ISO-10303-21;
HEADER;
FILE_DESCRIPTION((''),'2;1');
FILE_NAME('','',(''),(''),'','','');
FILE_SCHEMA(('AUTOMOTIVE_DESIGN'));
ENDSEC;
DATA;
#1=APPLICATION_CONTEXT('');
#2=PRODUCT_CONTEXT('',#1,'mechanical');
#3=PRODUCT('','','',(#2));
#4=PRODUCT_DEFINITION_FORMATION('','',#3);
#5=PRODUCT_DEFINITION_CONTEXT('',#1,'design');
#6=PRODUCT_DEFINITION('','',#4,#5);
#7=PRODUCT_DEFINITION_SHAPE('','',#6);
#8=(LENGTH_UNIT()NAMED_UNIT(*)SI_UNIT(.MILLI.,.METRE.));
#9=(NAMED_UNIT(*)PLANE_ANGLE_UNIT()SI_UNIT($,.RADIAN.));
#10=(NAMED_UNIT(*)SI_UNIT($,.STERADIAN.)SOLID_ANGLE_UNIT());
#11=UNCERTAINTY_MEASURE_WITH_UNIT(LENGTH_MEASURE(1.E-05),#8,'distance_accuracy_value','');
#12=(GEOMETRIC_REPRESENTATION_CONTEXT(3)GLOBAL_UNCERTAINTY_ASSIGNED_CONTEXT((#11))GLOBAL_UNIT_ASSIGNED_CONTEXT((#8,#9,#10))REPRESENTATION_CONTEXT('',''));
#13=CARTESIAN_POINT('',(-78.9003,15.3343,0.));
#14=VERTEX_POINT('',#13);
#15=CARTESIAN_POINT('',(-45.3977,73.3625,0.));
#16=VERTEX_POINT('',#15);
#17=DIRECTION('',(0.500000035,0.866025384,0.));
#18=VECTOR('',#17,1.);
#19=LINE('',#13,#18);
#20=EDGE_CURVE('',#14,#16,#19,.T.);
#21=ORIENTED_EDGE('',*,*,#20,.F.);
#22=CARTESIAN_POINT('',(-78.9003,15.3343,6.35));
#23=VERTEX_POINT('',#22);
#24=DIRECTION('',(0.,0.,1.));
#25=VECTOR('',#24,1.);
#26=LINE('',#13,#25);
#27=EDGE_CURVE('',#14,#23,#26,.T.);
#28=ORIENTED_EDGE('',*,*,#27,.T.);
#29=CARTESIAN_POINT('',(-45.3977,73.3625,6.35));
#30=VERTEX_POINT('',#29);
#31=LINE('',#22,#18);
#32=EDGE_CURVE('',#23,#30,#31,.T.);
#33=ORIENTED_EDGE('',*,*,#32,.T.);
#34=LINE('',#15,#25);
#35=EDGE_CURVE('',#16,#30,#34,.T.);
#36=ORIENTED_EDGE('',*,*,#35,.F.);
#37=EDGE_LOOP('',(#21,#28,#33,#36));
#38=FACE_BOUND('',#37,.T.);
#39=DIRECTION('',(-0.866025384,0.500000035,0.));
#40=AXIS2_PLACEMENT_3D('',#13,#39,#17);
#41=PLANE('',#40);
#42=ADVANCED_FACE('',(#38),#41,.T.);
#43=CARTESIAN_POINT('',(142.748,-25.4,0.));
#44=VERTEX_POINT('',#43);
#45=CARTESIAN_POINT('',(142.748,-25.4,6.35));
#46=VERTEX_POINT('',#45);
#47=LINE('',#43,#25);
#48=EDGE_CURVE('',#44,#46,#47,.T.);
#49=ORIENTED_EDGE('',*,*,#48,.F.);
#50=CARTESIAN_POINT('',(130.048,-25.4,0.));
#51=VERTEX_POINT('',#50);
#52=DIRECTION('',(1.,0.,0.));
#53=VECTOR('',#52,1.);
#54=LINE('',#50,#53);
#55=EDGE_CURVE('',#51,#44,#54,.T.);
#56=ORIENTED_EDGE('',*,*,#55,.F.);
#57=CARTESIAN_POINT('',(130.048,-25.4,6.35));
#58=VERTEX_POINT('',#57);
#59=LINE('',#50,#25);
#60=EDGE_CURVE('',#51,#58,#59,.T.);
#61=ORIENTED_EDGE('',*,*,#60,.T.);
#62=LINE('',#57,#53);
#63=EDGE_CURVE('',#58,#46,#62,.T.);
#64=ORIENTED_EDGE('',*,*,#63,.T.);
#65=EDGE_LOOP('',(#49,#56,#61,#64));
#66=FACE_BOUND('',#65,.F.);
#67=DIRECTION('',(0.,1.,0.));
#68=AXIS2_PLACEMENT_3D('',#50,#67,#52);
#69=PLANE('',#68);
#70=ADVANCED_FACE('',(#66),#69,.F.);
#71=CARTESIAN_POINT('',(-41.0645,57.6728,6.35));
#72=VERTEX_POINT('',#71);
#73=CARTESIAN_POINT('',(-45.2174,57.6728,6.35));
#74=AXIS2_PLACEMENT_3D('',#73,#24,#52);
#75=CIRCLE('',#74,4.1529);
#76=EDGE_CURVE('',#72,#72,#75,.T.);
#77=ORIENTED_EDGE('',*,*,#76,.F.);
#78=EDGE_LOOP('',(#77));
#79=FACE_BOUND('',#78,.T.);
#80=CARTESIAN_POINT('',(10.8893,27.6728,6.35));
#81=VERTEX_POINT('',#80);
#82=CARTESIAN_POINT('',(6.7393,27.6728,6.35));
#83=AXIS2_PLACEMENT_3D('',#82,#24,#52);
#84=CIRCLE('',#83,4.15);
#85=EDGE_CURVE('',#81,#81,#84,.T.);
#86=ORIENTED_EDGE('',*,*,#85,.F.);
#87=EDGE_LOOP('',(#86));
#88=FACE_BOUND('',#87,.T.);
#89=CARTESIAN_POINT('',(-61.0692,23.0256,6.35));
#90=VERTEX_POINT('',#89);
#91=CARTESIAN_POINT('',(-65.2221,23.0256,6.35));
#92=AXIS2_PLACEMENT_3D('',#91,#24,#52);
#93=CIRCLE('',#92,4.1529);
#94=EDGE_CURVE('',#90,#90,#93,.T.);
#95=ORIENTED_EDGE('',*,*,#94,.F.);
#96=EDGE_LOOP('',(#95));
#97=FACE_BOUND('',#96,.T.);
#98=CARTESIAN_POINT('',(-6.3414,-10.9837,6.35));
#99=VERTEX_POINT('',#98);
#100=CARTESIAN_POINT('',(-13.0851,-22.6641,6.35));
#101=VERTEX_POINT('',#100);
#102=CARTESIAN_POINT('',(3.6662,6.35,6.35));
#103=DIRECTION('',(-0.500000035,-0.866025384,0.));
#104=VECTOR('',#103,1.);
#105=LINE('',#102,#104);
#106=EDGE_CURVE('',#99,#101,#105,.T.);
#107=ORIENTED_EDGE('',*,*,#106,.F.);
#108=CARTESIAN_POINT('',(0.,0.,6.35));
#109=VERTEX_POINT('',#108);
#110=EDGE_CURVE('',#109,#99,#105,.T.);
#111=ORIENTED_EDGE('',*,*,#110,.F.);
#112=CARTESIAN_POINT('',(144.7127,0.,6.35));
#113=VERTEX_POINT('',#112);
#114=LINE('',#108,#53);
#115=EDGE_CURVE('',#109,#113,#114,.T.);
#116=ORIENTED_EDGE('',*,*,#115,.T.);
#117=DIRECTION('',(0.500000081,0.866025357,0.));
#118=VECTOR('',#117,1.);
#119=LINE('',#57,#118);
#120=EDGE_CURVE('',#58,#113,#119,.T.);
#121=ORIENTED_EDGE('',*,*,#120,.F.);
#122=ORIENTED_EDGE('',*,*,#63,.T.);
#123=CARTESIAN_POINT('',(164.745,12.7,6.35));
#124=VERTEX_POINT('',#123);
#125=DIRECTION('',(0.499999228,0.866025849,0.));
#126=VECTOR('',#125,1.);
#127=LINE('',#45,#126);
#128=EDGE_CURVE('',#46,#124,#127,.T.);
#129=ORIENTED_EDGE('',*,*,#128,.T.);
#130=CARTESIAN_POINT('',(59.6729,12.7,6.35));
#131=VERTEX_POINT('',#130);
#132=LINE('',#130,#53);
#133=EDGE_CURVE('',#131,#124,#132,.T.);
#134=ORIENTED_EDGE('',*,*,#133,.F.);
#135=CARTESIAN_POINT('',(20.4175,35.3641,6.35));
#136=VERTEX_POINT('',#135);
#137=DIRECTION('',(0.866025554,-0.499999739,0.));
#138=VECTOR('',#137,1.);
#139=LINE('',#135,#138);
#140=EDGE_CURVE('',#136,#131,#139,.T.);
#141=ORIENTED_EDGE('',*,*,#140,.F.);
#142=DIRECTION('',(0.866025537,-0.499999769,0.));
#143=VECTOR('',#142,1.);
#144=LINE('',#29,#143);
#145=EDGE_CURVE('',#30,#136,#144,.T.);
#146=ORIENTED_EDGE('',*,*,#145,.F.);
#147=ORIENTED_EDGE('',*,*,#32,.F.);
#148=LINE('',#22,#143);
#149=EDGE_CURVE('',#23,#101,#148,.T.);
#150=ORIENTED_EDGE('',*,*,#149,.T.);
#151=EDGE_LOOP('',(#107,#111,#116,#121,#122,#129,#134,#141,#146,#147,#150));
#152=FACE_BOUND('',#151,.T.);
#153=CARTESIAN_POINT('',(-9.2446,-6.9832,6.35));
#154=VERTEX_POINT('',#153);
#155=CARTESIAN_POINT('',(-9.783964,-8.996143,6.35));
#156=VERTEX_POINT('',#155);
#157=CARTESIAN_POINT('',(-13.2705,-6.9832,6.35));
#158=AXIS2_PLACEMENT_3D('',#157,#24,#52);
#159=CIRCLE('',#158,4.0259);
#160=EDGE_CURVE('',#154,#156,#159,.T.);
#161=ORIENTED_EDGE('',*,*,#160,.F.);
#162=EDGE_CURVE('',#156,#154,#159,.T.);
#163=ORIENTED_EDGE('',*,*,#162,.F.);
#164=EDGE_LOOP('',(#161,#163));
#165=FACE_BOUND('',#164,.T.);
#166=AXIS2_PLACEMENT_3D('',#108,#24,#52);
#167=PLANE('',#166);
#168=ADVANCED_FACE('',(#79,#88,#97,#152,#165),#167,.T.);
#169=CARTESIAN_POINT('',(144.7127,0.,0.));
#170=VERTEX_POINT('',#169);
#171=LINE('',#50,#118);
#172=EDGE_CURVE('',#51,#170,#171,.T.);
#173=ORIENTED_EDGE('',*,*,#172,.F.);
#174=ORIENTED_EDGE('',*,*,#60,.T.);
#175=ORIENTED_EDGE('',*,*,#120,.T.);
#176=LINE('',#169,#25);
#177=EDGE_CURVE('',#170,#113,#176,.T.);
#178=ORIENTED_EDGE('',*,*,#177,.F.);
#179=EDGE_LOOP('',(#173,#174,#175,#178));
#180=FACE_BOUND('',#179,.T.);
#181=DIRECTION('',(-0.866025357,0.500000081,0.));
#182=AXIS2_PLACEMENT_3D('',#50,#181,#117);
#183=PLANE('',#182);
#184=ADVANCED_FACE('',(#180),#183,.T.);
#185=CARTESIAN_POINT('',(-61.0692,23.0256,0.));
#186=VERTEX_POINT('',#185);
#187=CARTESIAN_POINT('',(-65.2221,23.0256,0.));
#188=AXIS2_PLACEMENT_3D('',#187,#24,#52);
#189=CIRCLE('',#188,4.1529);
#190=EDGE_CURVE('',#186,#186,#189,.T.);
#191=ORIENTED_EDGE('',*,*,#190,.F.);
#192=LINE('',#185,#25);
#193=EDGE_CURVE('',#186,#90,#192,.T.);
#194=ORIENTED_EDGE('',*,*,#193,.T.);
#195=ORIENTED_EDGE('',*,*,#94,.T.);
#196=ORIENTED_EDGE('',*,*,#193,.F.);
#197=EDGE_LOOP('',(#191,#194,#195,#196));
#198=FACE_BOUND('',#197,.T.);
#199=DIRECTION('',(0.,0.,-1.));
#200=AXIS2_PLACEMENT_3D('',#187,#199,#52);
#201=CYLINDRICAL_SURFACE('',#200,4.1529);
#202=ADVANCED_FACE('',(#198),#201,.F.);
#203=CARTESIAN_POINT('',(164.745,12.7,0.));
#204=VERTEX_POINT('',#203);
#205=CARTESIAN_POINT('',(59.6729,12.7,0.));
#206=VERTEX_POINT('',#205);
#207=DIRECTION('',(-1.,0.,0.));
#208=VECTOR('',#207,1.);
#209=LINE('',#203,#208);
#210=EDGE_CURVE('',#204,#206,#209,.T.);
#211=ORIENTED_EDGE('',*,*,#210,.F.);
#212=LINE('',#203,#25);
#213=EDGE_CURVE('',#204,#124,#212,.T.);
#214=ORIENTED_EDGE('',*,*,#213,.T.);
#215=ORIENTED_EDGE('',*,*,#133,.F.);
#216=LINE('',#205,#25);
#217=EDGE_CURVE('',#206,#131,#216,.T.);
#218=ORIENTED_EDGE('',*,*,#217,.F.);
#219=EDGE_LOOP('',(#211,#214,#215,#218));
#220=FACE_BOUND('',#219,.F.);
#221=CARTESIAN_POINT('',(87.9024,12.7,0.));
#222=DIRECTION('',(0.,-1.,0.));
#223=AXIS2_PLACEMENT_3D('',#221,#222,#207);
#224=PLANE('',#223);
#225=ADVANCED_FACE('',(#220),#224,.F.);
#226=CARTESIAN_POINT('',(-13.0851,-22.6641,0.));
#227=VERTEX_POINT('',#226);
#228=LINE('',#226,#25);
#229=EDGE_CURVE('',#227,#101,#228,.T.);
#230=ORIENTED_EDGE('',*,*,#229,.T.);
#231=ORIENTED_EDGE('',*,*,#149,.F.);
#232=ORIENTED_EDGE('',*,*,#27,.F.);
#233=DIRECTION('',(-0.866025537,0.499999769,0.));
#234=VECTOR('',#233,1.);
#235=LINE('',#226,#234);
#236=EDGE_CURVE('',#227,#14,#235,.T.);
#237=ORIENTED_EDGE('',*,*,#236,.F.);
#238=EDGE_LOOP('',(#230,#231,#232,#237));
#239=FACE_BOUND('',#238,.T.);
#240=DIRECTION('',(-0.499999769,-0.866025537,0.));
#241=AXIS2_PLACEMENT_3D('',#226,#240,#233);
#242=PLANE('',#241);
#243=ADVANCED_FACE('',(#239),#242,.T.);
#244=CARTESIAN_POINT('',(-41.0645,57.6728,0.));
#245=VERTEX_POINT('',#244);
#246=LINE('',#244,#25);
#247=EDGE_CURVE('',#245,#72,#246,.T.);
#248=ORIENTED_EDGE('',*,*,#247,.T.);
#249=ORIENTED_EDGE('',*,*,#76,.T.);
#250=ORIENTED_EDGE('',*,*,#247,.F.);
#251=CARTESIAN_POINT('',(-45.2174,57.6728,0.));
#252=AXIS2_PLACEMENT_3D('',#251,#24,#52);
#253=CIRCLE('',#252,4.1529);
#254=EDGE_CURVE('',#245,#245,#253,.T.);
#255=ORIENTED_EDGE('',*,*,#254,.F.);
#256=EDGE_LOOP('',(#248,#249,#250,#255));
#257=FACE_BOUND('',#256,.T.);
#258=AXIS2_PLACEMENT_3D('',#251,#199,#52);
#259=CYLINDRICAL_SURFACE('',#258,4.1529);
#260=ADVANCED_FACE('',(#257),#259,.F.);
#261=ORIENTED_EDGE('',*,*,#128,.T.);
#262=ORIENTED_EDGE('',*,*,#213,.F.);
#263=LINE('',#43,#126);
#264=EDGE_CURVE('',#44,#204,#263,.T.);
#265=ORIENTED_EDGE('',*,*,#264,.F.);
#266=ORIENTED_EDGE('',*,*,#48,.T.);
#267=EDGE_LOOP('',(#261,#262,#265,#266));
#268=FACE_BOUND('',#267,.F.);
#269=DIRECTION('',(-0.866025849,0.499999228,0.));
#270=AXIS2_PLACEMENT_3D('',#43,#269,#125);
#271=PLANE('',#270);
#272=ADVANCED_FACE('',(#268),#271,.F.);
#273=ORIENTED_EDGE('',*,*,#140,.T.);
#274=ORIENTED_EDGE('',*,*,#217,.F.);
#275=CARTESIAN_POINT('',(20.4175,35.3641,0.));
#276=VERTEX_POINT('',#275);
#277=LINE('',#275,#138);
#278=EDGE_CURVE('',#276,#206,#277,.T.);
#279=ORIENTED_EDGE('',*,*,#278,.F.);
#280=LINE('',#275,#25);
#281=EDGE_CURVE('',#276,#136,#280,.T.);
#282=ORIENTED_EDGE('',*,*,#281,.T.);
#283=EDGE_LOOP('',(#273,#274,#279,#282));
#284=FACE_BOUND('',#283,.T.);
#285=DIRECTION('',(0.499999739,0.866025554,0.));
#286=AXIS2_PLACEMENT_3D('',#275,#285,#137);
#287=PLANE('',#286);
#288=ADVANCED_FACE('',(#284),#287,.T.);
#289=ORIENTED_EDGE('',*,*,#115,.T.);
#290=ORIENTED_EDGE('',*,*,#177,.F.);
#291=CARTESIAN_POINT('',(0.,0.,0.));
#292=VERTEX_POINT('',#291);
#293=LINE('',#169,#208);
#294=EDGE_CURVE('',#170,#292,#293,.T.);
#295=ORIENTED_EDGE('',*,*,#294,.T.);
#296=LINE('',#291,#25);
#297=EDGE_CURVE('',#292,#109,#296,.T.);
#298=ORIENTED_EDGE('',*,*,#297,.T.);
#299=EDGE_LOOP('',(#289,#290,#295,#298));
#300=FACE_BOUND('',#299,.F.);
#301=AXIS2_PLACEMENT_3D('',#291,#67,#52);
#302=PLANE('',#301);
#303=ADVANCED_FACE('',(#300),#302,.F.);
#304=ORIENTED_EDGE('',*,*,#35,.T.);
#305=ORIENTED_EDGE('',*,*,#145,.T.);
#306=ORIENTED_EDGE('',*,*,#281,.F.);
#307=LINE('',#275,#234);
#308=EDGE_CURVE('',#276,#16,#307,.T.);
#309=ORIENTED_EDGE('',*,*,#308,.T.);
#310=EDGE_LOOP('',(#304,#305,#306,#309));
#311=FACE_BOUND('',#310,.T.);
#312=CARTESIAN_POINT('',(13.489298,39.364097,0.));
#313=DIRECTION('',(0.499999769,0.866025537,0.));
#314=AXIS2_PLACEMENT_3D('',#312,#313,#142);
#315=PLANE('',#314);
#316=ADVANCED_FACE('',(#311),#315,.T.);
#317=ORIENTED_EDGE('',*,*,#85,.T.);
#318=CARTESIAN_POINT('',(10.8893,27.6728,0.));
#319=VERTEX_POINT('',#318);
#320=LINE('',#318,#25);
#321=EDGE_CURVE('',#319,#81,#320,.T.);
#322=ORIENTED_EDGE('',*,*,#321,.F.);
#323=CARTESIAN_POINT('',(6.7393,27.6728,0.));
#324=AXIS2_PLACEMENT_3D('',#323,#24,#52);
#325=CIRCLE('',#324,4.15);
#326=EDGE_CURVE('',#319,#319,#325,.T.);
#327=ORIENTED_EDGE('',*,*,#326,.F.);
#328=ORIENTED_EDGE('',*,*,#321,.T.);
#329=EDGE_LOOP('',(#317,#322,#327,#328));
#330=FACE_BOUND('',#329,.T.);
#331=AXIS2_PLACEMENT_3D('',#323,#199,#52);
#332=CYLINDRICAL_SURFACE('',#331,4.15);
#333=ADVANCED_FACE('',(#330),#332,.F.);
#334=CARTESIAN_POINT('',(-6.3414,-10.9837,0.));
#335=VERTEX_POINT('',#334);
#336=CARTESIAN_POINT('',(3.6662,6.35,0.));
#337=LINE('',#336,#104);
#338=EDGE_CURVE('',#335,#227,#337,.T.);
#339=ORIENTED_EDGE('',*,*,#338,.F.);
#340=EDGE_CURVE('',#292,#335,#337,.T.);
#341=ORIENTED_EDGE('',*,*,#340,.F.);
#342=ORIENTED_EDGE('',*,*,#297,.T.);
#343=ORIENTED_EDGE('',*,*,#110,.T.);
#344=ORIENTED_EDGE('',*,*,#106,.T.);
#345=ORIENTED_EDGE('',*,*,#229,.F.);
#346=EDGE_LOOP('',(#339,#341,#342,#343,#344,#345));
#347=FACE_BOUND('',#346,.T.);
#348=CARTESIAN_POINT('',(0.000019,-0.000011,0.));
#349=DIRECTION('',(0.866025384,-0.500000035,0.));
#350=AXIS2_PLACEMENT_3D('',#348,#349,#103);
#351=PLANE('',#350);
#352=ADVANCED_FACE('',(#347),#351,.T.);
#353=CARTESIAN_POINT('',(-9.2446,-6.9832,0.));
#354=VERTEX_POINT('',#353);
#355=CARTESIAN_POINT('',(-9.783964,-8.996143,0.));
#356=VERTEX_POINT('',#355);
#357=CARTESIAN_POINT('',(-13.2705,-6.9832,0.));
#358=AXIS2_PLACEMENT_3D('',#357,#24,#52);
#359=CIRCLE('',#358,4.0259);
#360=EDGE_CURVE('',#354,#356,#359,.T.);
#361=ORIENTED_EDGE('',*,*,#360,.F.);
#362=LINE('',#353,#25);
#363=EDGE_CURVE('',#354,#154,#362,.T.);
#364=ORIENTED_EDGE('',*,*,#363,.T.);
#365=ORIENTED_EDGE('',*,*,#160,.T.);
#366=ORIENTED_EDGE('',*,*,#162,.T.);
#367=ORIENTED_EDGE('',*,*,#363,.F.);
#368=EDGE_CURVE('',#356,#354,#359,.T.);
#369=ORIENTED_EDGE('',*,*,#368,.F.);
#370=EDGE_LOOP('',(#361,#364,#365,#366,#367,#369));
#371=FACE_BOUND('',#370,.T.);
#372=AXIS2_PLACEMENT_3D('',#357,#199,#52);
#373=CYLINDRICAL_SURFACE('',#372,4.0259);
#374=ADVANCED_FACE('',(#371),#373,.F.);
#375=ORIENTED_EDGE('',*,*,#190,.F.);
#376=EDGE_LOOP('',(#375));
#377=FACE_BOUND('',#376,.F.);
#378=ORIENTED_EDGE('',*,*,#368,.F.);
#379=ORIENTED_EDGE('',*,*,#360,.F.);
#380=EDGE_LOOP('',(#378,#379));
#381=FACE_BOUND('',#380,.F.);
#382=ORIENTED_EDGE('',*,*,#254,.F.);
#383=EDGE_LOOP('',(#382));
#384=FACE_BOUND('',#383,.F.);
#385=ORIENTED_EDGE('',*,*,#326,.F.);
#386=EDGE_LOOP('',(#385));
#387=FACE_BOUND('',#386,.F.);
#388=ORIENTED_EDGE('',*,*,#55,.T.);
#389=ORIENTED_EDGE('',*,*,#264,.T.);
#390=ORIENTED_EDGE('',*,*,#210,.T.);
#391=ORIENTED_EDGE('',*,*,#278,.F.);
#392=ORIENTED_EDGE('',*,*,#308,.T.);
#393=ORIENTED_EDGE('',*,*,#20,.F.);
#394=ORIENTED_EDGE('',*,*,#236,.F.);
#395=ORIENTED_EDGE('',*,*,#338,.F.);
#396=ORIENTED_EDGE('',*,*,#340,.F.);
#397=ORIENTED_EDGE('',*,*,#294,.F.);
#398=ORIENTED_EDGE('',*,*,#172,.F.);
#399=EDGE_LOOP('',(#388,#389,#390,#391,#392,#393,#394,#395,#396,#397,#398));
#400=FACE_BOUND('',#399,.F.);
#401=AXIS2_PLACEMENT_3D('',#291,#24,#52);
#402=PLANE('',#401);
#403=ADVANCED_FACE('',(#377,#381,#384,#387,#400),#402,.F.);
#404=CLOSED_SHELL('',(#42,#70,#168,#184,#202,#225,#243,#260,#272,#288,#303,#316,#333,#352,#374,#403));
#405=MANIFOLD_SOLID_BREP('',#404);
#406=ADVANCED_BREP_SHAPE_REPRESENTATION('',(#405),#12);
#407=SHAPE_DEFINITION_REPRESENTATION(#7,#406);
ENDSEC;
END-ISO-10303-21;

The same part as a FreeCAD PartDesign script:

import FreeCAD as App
import Part
import Sketcher
Q = App.Units.Quantity

doc = App.newDocument("Part")
body = doc.addObject("PartDesign::Body", "Body")

# Sketch on XY plane
sketch1 = body.newObject("Sketcher::SketchObject", "Sketch")
sketch1.AttachmentSupport = (doc.getObject("XY_Plane"), [""])
sketch1.MapMode = "FlatFace"
sketch1.addGeometry([
    Part.LineSegment(App.Vector(59.7, 12.7, 0), App.Vector(20.4, 35.4, 0)),  # 0
    Part.LineSegment(App.Vector(20.4, 35.4, 0), App.Vector(-45.4, 73.4, 0)),  # 1
    Part.LineSegment(App.Vector(-45.4, 73.4, 0), App.Vector(-78.9, 15.3, 0)),  # 2
    Part.LineSegment(App.Vector(-78.9, 15.3, 0), App.Vector(-13.1, -22.7, 0)),  # 3
    Part.LineSegment(App.Vector(-13.1, -22.7, 0), App.Vector(-6.3, -11, 0)),  # 4
    Part.LineSegment(App.Vector(-6.3, -11, 0), App.Vector(0, 0, 0)),  # 5
    Part.LineSegment(App.Vector(0, 0, 0), App.Vector(144.7, 0, 0)),  # 6
    Part.LineSegment(App.Vector(144.7, 0, 0), App.Vector(130, -25.4, 0)),  # 7
    Part.LineSegment(App.Vector(130, -25.4, 0), App.Vector(142.7, -25.4, 0)),  # 8
    Part.LineSegment(App.Vector(142.7, -25.4, 0), App.Vector(164.7, 12.7, 0)),  # 9
    Part.LineSegment(App.Vector(164.7, 12.7, 0), App.Vector(59.7, 12.7, 0)),  # 10
    Part.Circle(App.Vector(6.7, 27.7, 0), App.Vector(0, 0, 1), 4.2),  # 11
    Part.Circle(App.Vector(-45.2, 57.7, 0), App.Vector(0, 0, 1), 4.2),  # 12
    Part.Circle(App.Vector(-13.3, -7, 0), App.Vector(0, 0, 1), 4),  # 13
    Part.Circle(App.Vector(-65.2, 23, 0), App.Vector(0, 0, 1), 4.2),  # 14
], False)
sketch1.addConstraint([
    Sketcher.Constraint("Coincident", 0, 2, 1, 1),
    Sketcher.Constraint("Coincident", 1, 2, 2, 1),
    Sketcher.Constraint("Coincident", 2, 2, 3, 1),
    Sketcher.Constraint("Coincident", 3, 2, 4, 1),
    Sketcher.Constraint("Coincident", 4, 2, 5, 1),
    Sketcher.Constraint("Coincident", 5, 2, 6, 1),
    Sketcher.Constraint("Coincident", 6, 2, 7, 1),
    Sketcher.Constraint("Coincident", 7, 2, 8, 1),
    Sketcher.Constraint("Coincident", 8, 2, 9, 1),
    Sketcher.Constraint("Coincident", 9, 2, 10, 1),
    Sketcher.Constraint("Coincident", 10, 2, 0, 1),
    Sketcher.Constraint("Horizontal", 6),
    Sketcher.Constraint("Horizontal", 8),
    Sketcher.Constraint("Horizontal", 10),
    Sketcher.Constraint("Coincident", 5, 2, -1, 1),
    Sketcher.Constraint("Equal", 12, 14),
    Sketcher.Constraint("Parallel", 0, 1),
    Sketcher.Constraint("Perpendicular", 1, 2),
    Sketcher.Constraint("Perpendicular", 2, 3),
    Sketcher.Constraint("Perpendicular", 3, 4),
    Sketcher.Constraint("Parallel", 4, 5),
    Sketcher.Constraint("Parallel", 5, 7),
    Sketcher.Constraint("Parallel", 7, 9),
    Sketcher.Constraint("Equal", 1, 3),
    Sketcher.Constraint("Diameter", 12, Q("0.327 in")),
    Sketcher.Constraint("Diameter", 13, Q("0.317 in")),
    Sketcher.Constraint("DistanceX", 8, 1, 8, 2, Q("0.5 in")),
    Sketcher.Constraint("DistanceY", 7, 2, -1, 1, Q("1 in")),
    Sketcher.Constraint("Angle", 4, Q("60 deg")),
    Sketcher.Constraint("DistanceY", -1, 1, 9, 2, Q("0.5 in")),
    Sketcher.Constraint("Diameter", 11, Q("8.3 mm")),
    Sketcher.Constraint("DistanceX", -1, 1, 7, 2, Q("5.12 in")),
    Sketcher.Constraint("Distance", 1, Q("2.992 in")),
    Sketcher.Constraint("Distance", 4, Q("0.531 in")),
    Sketcher.Constraint("DistanceX", 2, 2, 1, 2, Q("1.319 in")),
    Sketcher.Constraint("DistanceX", 10, 2, 10, 1, Q("4.1367 in")),
    Sketcher.Constraint("DistanceX", 4, 2, 11, 3, Q("0.515 in")),
    Sketcher.Constraint("DistanceX", 14, 3, -1, 1, Q("2.5678 in")),
    Sketcher.Constraint("DistanceY", 11, 3, 12, 3, Q("1.1811 in")),
    Sketcher.Constraint("DistanceY", 13, 3, 11, 3, Q("1.3644 in")),
    Sketcher.Constraint("DistanceY", 11, 3, 0, 2, Q("0.3028 in")),
    Sketcher.Constraint("DistanceX", 13, 3, 0, 2, Q("1.3263 in")),
    Sketcher.Constraint("DistanceX", 1, 2, 12, 3, Q("0.0071 in")),
    Sketcher.Constraint("DistanceY", 2, 2, 14, 3, Q("0.3028 in")),
])
pad1 = body.newObject("PartDesign::Pad", "Pad")
pad1.Profile = sketch1
pad1.Length = Q("0.25 in")

doc.recompute()
